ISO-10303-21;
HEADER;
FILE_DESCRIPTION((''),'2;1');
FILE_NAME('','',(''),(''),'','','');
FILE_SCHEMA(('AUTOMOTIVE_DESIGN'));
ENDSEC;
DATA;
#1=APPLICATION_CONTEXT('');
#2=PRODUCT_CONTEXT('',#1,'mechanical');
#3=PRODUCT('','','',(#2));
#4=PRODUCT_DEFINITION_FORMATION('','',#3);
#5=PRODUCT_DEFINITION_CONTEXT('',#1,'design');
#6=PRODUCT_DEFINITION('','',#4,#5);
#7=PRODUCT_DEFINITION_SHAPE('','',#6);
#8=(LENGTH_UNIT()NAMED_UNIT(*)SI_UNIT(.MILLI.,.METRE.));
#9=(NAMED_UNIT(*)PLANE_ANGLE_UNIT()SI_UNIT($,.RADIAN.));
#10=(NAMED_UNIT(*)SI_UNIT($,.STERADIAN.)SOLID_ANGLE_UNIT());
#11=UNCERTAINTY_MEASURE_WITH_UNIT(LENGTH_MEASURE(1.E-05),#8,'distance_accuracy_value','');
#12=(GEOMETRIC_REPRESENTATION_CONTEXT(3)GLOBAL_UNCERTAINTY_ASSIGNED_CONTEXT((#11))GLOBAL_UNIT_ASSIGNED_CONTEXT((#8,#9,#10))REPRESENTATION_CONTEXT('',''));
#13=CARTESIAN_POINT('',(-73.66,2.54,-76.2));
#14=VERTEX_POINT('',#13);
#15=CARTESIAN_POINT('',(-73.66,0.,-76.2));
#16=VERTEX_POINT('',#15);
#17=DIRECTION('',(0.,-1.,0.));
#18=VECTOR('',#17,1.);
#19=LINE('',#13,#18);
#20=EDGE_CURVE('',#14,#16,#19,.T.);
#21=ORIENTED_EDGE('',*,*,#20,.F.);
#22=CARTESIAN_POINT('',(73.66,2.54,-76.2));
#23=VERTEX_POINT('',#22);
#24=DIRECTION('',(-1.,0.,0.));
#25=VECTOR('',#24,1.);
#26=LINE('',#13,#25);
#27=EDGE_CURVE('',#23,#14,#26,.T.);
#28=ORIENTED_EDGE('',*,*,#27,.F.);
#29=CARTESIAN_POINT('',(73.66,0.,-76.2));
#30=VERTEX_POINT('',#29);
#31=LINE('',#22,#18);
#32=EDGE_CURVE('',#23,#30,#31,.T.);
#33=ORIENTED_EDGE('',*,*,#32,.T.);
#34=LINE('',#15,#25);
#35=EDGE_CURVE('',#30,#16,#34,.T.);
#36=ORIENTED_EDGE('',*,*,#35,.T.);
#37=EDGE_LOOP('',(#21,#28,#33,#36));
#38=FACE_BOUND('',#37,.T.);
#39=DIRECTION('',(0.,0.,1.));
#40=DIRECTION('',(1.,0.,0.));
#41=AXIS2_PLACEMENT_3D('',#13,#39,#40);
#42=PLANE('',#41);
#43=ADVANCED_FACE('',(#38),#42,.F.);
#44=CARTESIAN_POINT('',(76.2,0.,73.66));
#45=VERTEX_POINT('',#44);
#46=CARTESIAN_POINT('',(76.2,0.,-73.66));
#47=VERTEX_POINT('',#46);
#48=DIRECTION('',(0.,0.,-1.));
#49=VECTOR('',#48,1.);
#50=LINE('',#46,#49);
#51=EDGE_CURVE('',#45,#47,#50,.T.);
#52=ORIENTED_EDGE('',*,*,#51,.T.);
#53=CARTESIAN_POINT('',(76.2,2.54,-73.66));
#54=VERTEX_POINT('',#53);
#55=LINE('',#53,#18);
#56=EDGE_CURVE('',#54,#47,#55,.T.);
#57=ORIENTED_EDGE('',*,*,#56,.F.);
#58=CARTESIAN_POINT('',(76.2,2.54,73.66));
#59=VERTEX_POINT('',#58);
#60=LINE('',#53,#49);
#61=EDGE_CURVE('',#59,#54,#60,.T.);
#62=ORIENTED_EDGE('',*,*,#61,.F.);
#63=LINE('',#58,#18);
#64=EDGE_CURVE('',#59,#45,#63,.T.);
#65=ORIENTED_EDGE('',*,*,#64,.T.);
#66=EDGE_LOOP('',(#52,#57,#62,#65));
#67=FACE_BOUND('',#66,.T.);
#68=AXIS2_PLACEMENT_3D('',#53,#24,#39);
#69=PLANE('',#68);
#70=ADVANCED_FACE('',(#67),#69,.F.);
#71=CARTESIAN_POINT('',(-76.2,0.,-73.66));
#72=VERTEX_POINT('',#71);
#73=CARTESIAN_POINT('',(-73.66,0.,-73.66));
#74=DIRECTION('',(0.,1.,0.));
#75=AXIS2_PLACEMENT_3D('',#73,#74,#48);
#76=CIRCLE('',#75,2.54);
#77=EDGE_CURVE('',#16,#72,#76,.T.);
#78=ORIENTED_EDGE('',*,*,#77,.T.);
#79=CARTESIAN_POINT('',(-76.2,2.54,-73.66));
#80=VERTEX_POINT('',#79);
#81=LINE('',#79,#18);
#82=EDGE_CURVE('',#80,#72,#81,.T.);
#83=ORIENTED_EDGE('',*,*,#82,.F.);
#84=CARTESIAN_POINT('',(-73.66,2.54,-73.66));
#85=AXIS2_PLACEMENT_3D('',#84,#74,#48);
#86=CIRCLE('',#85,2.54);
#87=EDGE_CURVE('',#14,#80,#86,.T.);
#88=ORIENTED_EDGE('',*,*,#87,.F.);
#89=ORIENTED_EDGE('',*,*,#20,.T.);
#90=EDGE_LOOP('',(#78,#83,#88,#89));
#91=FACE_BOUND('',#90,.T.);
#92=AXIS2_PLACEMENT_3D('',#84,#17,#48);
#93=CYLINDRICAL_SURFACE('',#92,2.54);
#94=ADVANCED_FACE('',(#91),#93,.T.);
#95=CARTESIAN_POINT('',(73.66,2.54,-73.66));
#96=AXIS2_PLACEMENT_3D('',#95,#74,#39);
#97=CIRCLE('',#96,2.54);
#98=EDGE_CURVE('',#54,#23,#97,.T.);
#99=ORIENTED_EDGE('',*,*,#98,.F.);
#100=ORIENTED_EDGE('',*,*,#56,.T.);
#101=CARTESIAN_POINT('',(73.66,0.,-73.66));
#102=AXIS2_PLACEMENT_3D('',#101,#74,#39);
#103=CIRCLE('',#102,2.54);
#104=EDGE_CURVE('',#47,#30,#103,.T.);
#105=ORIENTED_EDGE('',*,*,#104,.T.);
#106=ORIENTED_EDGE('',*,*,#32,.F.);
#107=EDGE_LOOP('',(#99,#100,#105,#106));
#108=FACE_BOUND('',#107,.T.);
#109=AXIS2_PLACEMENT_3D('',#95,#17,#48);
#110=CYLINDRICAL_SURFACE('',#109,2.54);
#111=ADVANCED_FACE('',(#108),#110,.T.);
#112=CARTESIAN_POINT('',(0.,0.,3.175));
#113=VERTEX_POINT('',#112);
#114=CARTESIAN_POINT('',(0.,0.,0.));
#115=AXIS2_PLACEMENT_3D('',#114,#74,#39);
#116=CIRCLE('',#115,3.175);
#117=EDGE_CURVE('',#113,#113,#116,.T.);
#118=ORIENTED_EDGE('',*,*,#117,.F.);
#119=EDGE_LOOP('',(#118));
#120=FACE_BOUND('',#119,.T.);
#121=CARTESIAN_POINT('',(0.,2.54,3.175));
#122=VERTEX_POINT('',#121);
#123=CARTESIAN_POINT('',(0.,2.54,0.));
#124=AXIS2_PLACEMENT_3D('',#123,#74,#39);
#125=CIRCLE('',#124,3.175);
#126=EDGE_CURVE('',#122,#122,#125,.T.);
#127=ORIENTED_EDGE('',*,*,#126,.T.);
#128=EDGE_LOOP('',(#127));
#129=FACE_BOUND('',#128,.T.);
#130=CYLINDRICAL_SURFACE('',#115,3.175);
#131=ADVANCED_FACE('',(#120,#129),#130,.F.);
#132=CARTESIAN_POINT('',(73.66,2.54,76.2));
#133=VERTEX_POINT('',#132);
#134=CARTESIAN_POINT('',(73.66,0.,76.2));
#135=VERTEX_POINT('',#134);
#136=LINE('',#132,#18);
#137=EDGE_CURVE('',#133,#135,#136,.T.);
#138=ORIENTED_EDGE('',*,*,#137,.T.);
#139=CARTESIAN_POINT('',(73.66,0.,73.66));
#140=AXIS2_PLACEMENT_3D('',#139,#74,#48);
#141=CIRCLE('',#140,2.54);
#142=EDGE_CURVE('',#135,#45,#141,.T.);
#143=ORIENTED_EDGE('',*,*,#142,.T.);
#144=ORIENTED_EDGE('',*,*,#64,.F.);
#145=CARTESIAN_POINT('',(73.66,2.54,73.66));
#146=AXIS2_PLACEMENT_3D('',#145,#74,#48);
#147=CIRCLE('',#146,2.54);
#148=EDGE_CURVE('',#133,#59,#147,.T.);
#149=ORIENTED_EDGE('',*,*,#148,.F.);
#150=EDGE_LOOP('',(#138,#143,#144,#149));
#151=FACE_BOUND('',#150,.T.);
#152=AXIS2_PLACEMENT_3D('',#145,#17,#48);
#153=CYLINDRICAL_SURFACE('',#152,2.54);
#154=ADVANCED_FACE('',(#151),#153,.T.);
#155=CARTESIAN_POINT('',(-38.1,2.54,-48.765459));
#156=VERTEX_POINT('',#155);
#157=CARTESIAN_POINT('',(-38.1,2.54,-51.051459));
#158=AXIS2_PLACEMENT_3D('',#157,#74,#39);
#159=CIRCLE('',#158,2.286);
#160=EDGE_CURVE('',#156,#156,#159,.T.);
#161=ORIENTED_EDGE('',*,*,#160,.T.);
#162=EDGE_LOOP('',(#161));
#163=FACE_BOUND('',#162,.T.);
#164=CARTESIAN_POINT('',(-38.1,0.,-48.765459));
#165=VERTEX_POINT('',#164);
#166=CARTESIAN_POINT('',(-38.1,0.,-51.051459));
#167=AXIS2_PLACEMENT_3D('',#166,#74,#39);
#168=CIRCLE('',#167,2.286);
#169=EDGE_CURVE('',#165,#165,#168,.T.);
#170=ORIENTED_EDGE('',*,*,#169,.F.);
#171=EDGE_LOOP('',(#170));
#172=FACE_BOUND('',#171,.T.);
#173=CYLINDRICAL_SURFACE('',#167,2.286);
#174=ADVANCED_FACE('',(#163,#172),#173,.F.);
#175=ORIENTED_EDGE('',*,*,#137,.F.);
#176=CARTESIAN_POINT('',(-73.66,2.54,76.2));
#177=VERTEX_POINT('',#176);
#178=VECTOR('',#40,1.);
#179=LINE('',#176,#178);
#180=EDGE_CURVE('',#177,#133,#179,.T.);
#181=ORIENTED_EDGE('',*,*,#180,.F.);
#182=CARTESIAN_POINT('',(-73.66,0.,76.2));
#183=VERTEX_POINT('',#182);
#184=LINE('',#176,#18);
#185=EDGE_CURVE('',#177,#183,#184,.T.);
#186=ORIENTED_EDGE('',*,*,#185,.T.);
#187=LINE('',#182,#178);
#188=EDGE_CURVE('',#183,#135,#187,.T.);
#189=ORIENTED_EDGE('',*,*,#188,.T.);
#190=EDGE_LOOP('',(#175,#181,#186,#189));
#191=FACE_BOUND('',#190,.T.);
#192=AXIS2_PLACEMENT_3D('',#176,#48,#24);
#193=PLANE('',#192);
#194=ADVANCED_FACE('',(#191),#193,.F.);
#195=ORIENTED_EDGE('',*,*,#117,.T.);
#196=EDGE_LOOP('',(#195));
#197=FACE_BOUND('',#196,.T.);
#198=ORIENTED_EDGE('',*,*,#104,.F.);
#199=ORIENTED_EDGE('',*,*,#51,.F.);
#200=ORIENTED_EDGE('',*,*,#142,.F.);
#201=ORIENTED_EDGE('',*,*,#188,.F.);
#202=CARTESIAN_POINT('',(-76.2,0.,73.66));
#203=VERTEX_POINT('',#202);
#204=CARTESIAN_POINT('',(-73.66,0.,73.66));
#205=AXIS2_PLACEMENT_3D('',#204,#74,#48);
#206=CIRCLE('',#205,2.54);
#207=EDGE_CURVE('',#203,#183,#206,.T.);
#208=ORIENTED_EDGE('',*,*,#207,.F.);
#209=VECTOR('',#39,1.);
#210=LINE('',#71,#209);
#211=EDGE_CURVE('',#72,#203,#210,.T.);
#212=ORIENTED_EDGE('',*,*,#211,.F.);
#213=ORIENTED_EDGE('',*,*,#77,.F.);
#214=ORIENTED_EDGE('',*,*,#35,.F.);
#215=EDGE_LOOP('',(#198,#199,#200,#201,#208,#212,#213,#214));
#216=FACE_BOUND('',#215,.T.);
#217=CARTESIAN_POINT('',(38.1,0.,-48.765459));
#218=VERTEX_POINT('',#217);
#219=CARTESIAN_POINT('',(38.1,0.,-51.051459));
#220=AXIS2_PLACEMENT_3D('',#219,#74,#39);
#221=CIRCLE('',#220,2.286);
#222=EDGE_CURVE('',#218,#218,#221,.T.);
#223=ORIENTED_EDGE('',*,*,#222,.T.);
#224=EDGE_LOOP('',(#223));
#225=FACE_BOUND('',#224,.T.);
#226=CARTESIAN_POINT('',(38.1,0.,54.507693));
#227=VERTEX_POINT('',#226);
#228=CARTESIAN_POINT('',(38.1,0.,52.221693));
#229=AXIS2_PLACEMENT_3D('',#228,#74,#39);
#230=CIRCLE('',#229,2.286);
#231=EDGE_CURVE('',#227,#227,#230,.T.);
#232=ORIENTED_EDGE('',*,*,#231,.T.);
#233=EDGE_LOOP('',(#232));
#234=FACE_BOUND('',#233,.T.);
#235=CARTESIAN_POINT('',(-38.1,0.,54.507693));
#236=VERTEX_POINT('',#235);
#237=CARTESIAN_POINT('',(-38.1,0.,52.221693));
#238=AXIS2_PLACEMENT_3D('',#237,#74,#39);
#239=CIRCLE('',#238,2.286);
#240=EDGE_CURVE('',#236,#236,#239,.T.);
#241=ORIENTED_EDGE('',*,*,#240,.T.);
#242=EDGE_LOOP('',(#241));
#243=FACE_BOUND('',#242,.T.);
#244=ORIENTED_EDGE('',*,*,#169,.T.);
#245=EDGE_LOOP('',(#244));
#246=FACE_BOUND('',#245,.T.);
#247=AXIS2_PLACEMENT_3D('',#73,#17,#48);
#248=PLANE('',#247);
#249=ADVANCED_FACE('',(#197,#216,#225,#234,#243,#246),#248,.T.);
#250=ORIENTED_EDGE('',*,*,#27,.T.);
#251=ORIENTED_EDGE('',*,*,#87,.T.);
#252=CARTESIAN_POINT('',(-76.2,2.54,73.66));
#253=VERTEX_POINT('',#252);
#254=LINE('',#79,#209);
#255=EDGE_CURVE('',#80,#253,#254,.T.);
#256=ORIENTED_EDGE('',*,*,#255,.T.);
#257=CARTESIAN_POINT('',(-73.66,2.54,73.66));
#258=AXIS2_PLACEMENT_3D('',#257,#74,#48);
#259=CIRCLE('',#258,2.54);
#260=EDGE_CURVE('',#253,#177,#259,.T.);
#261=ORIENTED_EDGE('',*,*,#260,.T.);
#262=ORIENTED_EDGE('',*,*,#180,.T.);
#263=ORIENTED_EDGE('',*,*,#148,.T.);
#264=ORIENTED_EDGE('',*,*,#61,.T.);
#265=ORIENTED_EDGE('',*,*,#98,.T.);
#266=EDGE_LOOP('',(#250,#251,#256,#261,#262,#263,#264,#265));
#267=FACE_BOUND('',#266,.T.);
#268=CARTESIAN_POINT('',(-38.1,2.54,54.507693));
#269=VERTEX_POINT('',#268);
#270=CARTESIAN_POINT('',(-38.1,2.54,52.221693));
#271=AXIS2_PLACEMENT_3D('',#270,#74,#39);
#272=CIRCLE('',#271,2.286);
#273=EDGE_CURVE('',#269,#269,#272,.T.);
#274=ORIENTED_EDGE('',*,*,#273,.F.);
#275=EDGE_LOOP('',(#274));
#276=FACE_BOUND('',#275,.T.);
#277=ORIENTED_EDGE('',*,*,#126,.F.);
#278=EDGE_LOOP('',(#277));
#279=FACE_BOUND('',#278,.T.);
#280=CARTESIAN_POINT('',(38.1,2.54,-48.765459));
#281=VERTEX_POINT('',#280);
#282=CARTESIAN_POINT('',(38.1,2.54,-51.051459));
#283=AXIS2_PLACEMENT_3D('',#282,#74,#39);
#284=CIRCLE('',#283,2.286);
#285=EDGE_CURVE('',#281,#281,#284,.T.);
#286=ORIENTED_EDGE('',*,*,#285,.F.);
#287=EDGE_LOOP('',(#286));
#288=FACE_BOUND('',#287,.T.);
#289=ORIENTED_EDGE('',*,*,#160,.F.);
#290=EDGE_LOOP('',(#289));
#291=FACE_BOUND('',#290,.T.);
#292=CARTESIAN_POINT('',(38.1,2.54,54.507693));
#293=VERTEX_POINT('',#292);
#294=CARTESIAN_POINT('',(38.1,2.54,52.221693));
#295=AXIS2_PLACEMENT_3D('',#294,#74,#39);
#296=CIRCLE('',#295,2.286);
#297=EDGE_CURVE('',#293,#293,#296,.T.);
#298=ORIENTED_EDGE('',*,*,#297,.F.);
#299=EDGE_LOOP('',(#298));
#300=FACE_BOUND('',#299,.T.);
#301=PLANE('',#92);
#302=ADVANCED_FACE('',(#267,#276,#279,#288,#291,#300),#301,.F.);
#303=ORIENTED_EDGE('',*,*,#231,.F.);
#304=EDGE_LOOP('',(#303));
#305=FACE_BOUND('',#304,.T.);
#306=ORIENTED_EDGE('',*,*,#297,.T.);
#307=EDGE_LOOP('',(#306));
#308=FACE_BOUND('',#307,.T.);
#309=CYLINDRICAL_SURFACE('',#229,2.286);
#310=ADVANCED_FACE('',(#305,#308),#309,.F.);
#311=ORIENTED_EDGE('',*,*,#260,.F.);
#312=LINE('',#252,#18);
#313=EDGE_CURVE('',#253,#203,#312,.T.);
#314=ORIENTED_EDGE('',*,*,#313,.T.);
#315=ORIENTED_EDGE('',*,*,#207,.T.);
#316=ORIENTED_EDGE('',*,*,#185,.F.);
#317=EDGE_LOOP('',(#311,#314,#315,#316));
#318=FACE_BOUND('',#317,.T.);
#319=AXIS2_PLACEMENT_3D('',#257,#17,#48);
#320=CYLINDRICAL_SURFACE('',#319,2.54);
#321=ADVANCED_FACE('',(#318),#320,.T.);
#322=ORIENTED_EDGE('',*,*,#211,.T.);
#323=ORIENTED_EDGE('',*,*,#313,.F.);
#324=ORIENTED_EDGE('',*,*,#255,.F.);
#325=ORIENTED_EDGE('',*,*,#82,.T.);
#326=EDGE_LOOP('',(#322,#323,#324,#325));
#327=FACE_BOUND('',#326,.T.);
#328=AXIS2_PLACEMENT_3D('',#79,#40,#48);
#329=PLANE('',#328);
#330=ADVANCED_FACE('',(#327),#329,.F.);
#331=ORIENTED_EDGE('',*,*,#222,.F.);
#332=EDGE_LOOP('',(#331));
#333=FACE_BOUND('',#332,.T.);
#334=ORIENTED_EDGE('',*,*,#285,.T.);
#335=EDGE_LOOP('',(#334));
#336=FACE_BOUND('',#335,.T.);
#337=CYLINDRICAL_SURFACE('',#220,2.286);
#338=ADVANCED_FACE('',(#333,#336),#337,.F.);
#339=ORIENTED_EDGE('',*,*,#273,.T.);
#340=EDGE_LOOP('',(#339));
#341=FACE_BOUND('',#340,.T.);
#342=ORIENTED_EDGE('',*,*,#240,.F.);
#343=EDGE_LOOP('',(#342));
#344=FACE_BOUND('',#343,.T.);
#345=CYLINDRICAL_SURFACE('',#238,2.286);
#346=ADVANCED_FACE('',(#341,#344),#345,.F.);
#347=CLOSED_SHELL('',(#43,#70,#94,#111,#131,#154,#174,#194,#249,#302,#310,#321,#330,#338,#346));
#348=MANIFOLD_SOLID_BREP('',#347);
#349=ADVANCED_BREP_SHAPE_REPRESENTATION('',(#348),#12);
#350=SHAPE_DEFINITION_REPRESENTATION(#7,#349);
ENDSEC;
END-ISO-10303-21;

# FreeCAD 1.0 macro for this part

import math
import FreeCAD as App
import Part
import Sketcher
from FreeCAD import Vector
Q = App.Units.Quantity

doc = App.newDocument("Part")
body = doc.addObject("PartDesign::Body", "Body")

# Sketch on XZ plane
sketch1 = doc.addObject("Sketcher::SketchObject", "Sketch")
body.addObject(sketch1)
sketch1.AttachmentSupport = (doc.XZ_Plane, [""])
sketch1.MapMode = "FlatFace"
sketch1.addGeometry([
    Part.LineSegment(Vector(73.7, -76.2, 0), Vector(-73.7, -76.2, 0)),  # 0
    Part.ArcOfCircle(Part.Circle(Vector(-73.7, -73.7, 0), Vector(0, 0, 1), 2.5), math.radians(-180), math.radians(-90)),  # 1
    Part.LineSegment(Vector(-76.2, -73.7, 0), Vector(-76.2, 73.7, 0)),  # 2
    Part.ArcOfCircle(Part.Circle(Vector(-73.7, 73.7, 0), Vector(0, 0, 1), 2.5), math.radians(90), math.radians(180)),  # 3
    Part.LineSegment(Vector(-73.7, 76.2, 0), Vector(73.7, 76.2, 0)),  # 4
    Part.ArcOfCircle(Part.Circle(Vector(73.7, 73.7, 0), Vector(0, 0, 1), 2.5), math.radians(0), math.radians(90)),  # 5
    Part.LineSegment(Vector(76.2, 73.7, 0), Vector(76.2, -73.7, 0)),  # 6
    Part.ArcOfCircle(Part.Circle(Vector(73.7, -73.7, 0), Vector(0, 0, 1), 2.5), math.radians(-90), math.radians(0)),  # 7
    Part.Circle(Vector(0, 0, 0), Vector(0, 0, 1), 1.4),  # 8
], False)
sketch1.addConstraint([
    Sketcher.Constraint("Tangent", 0, 2, 1, 2),
    Sketcher.Constraint("Tangent", 1, 1, 2, 1),
    Sketcher.Constraint("Tangent", 2, 2, 3, 2),
    Sketcher.Constraint("Tangent", 3, 1, 4, 1),
    Sketcher.Constraint("Tangent", 4, 2, 5, 2),
    Sketcher.Constraint("Tangent", 5, 1, 6, 1),
    Sketcher.Constraint("Tangent", 6, 2, 7, 2),
    Sketcher.Constraint("Tangent", 7, 1, 0, 1),
    Sketcher.Constraint("Horizontal", 0),
    Sketcher.Constraint("Vertical", 2),
    Sketcher.Constraint("Horizontal", 4),
    Sketcher.Constraint("Vertical", 6),
    Sketcher.Constraint("Coincident", 8, 3, -1, 1),
    Sketcher.Constraint("Equal", 1, 3),
    Sketcher.Constraint("Equal", 3, 5),
    Sketcher.Constraint("Equal", 5, 7),
    Sketcher.Constraint("Symmetric", 1, 3, 5, 3, -1, 1),
    Sketcher.Constraint("Equal", 4, 2),
    Sketcher.Constraint("Radius", 1, Q("0.1 in")),
    Sketcher.Constraint("Diameter", 8, Q("0.112 in")),
    Sketcher.Constraint("DistanceX", 0, 2, 0, 1, Q("5.8 in")),
])
pad1 = doc.addObject("PartDesign::Pad", "Pad")
body.addObject(pad1)
pad1.Profile = sketch1
pad1.Length = Q("0.1 in")
pad1.Reversed = True

# Sketch on XZ plane
sketch2 = doc.addObject("Sketcher::SketchObject", "Sketch001")
body.addObject(sketch2)
sketch2.AttachmentSupport = (doc.XZ_Plane, [""])
sketch2.MapMode = "FlatFace"
sketch2.AttachmentOffset = App.Placement(Vector(0, 0, -0.1 * 25.4), App.Rotation())
sketch2.addGeometry([
    Part.Circle(Vector(-38.1, -51.1, 0), Vector(0, 0, 1), 2.3),  # 0
    Part.Circle(Vector(38.1, -51.1, 0), Vector(0, 0, 1), 2.3),  # 1
    Part.Circle(Vector(38.1, 52.2, 0), Vector(0, 0, 1), 2.3),  # 2
    Part.Circle(Vector(-38.1, 52.2, 0), Vector(0, 0, 1), 2.3),  # 3
    Part.Circle(Vector(0, 0, 0), Vector(0, 0, 1), 3.2),  # 4
], False)
sketch2.addConstraint([
    Sketcher.Constraint("Coincident", 4, 3, -1, 1),
    Sketcher.Constraint("Equal", 0, 1),
    Sketcher.Constraint("Equal", 1, 2),
    Sketcher.Constraint("Equal", 2, 3),
    Sketcher.Constraint("Symmetric", 0, 3, 1, 3, -2),
    Sketcher.Constraint("Symmetric", 2, 3, 3, 3, -2),
    Sketcher.Constraint("Vertical", 1, 3, 2, 3),
    Sketcher.Constraint("Diameter", 0, Q("0.18 in")),
    Sketcher.Constraint("Diameter", 4, Q("0.25 in")),
    Sketcher.Constraint("DistanceX", 0, 3, 1, 3, Q("3 in")),
    Sketcher.Constraint("DistanceY", 0, 3, -1, 1, Q("2.0099 in")),
    Sketcher.Constraint("DistanceY", 1, 3, 2, 3, 103.273152),
])
pocket1 = doc.addObject("PartDesign::Pocket", "Pocket")
body.addObject(pocket1)
pocket1.Profile = sketch2
pocket1.Type = "ThroughAll"
pocket1.Reversed = True

doc.recompute()
